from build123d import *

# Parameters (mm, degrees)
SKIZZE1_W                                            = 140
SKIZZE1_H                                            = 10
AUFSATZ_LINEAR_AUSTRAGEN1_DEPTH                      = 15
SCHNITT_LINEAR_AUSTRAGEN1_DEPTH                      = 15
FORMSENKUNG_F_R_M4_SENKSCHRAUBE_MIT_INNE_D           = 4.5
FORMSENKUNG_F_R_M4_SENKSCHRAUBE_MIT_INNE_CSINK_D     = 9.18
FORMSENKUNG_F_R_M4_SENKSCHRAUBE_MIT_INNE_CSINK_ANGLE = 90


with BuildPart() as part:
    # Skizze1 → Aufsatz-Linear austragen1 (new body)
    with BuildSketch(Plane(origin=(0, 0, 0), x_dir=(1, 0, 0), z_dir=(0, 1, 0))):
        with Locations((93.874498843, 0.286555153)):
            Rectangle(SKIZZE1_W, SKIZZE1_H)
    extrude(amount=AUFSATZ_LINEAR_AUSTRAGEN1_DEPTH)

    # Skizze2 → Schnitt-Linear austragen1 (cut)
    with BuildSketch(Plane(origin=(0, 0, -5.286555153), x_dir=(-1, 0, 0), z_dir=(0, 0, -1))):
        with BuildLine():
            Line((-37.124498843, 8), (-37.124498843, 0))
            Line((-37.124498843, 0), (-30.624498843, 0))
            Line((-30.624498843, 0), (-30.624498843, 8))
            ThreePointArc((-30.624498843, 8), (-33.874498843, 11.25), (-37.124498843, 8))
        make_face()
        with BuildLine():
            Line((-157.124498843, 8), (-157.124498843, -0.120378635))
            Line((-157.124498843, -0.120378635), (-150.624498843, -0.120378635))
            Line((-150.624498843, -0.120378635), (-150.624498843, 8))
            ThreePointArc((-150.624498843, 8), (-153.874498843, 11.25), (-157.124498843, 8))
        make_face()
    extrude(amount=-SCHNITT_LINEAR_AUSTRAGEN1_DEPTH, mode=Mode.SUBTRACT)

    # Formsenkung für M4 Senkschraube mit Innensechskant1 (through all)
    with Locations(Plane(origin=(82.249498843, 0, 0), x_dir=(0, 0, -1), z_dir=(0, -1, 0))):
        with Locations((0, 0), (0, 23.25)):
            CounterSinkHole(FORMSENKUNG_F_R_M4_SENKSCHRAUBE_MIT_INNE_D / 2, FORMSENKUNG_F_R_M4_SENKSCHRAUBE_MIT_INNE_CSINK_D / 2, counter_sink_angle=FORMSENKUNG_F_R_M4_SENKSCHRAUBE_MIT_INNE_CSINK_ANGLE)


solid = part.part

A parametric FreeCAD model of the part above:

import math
import FreeCAD as App
import Part
import Sketcher
Q = App.Units.Quantity


def add_polygon(sketch, points):
    """Adds a closed chain of lines whose ends are joined by coincident constraints."""
    first, n = sketch.GeometryCount, len(points)
    for a, b in zip(points, points[1:] + points[:1]):
        sketch.addGeometry(Part.LineSegment(App.Vector(*a, 0), App.Vector(*b, 0)), False)
    for i in range(n):
        sketch.addConstraint(Sketcher.Constraint("Coincident", first + i, 2, first + (i + 1) % n, 1))

doc = App.newDocument("Part")
body = doc.addObject("PartDesign::Body", "Body")

# Sketch on XZ plane
sketch1 = doc.addObject("Sketcher::SketchObject", "Sketch")
body.addObject(sketch1)
sketch1.AttachmentSupport = (doc.XZ_Plane, [""])
sketch1.MapMode = "FlatFace"
add_polygon(sketch1, [(24, -5), (24, 5), (164, 5), (164, -5)])  # lines 0-3
sketch1.addConstraint([
    Sketcher.Constraint("Vertical", 0),
    Sketcher.Constraint("Horizontal", 1),
    Sketcher.Constraint("Vertical", 2),
    Sketcher.Constraint("Horizontal", 3),
    Sketcher.Constraint("DistanceX", 1, 1, 1, 2, Q("140 mm")),
    Sketcher.Constraint("DistanceY", 0, 1, 0, 2, Q("10 mm")),
    Sketcher.Constraint("DistanceX", -1, 1, 0, 2, Q("23.874499 mm")),
    Sketcher.Constraint("DistanceY", -1, 1, 0, 2, Q("4.713445 mm")),
])
pad1 = doc.addObject("PartDesign::Pad", "Pad")
body.addObject(pad1)
pad1.Profile = sketch1
pad1.Length = 15
pad1.Reversed = True

# Sketch on XY plane
sketch2 = doc.addObject("Sketcher::SketchObject", "Sketch001")
body.addObject(sketch2)
sketch2.AttachmentSupport = (doc.XY_Plane, [""])
sketch2.MapMode = "FlatFace"
sketch2.AttachmentOffset = App.Placement(App.Vector(0, 0, -5.286555), App.Rotation())
sketch2.addGeometry([
    Part.LineSegment(App.Vector(37.1, 8, 0), App.Vector(37.1, 0, 0)),  # 0
    Part.LineSegment(App.Vector(37.1, 0, 0), App.Vector(30.6, 0, 0)),  # 1
    Part.LineSegment(App.Vector(30.6, 0, 0), App.Vector(30.6, 8, 0)),  # 2
    Part.ArcOfCircle(Part.Circle(App.Vector(33.9, 8, 0), App.Vector(0, 0, 1), 3.2), math.radians(0), math.radians(180)),  # 3
    Part.LineSegment(App.Vector(157.1, 8, 0), App.Vector(157.1, -0.1, 0)),  # 4
    Part.LineSegment(App.Vector(157.1, -0.1, 0), App.Vector(150.6, -0.1, 0)),  # 5
    Part.LineSegment(App.Vector(150.6, -0.1, 0), App.Vector(150.6, 8, 0)),  # 6
    Part.ArcOfCircle(Part.Circle(App.Vector(153.9, 8, 0), App.Vector(0, 0, 1), 3.2), math.radians(0), math.radians(180)),  # 7
], False)
sketch2.addConstraint([
    Sketcher.Constraint("Coincident", 0, 2, 1, 1),
    Sketcher.Constraint("Coincident", 1, 2, 2, 1),
    Sketcher.Constraint("Tangent", 2, 2, 3, 2),
    Sketcher.Constraint("Tangent", 3, 1, 0, 1),
    Sketcher.Constraint("Coincident", 4, 2, 5, 1),
    Sketcher.Constraint("Coincident", 5, 2, 6, 1),
    Sketcher.Constraint("Tangent", 6, 2, 7, 2),
    Sketcher.Constraint("Tangent", 7, 1, 4, 1),
    Sketcher.Constraint("Vertical", 0),
    Sketcher.Constraint("Horizontal", 1),
    Sketcher.Constraint("Vertical", 2),
    Sketcher.Constraint("Vertical", 4),
    Sketcher.Constraint("Horizontal", 5),
    Sketcher.Constraint("Vertical", 6),
    Sketcher.Constraint("Equal", 3, 7),
    Sketcher.Constraint("PointOnObject", 0, 2, -1),
    Sketcher.Constraint("Horizontal", 3, 3, 7, 3),
    Sketcher.Constraint("DistanceY", 0, 2, 0, 1, Q("8 mm")),
    Sketcher.Constraint("Radius", 3, Q("3.25 mm")),
    Sketcher.Constraint("DistanceX", 3, 3, 7, 3, Q("120 mm")),
    Sketcher.Constraint("DistanceY", 4, 2, 4, 1, Q("8.120379 mm")),
    Sketcher.Constraint("DistanceX", -1, 1, 3, 3, Q("33.874499 mm")),
])
pocket1 = doc.addObject("PartDesign::Pocket", "Pocket")
body.addObject(pocket1)
pocket1.Profile = sketch2
pocket1.Length = 15
pocket1.Reversed = True

# Sketch on XZ plane
sketch3 = doc.addObject("Sketcher::SketchObject", "Sketch002")
body.addObject(sketch3)
sketch3.AttachmentSupport = (doc.XZ_Plane, [""])
sketch3.MapMode = "FlatFace"
sketch3.addGeometry([
    Part.Circle(App.Vector(82.2, 0, 0), App.Vector(0, 0, 1), 2.2),
    Part.Circle(App.Vector(105.5, 0, 0), App.Vector(0, 0, 1), 2.2),
], False)
sketch3.addConstraint([
    Sketcher.Constraint("Equal", 0, 1),
    Sketcher.Constraint("PointOnObject", 0, 3, -1),
    Sketcher.Constraint("PointOnObject", 1, 3, -1),
    Sketcher.Constraint("Diameter", 0, Q("4.5 mm")),
    Sketcher.Constraint("DistanceX", 0, 3, 1, 3, Q("23.25 mm")),
    Sketcher.Constraint("DistanceX", -1, 1, 0, 3, Q("82.249499 mm")),
])
doc.recompute()
hole = doc.addObject("PartDesign::Hole", "Hole")
body.addObject(hole)
hole.Profile = sketch3
hole.ThreadType = "None"
hole.Diameter = 4.5
hole.DepthType = "ThroughAll"
hole.HoleCutType = "Countersink"
hole.HoleCutDiameter = 9.18
hole.HoleCutCountersinkAngle = 90

doc.recompute()
